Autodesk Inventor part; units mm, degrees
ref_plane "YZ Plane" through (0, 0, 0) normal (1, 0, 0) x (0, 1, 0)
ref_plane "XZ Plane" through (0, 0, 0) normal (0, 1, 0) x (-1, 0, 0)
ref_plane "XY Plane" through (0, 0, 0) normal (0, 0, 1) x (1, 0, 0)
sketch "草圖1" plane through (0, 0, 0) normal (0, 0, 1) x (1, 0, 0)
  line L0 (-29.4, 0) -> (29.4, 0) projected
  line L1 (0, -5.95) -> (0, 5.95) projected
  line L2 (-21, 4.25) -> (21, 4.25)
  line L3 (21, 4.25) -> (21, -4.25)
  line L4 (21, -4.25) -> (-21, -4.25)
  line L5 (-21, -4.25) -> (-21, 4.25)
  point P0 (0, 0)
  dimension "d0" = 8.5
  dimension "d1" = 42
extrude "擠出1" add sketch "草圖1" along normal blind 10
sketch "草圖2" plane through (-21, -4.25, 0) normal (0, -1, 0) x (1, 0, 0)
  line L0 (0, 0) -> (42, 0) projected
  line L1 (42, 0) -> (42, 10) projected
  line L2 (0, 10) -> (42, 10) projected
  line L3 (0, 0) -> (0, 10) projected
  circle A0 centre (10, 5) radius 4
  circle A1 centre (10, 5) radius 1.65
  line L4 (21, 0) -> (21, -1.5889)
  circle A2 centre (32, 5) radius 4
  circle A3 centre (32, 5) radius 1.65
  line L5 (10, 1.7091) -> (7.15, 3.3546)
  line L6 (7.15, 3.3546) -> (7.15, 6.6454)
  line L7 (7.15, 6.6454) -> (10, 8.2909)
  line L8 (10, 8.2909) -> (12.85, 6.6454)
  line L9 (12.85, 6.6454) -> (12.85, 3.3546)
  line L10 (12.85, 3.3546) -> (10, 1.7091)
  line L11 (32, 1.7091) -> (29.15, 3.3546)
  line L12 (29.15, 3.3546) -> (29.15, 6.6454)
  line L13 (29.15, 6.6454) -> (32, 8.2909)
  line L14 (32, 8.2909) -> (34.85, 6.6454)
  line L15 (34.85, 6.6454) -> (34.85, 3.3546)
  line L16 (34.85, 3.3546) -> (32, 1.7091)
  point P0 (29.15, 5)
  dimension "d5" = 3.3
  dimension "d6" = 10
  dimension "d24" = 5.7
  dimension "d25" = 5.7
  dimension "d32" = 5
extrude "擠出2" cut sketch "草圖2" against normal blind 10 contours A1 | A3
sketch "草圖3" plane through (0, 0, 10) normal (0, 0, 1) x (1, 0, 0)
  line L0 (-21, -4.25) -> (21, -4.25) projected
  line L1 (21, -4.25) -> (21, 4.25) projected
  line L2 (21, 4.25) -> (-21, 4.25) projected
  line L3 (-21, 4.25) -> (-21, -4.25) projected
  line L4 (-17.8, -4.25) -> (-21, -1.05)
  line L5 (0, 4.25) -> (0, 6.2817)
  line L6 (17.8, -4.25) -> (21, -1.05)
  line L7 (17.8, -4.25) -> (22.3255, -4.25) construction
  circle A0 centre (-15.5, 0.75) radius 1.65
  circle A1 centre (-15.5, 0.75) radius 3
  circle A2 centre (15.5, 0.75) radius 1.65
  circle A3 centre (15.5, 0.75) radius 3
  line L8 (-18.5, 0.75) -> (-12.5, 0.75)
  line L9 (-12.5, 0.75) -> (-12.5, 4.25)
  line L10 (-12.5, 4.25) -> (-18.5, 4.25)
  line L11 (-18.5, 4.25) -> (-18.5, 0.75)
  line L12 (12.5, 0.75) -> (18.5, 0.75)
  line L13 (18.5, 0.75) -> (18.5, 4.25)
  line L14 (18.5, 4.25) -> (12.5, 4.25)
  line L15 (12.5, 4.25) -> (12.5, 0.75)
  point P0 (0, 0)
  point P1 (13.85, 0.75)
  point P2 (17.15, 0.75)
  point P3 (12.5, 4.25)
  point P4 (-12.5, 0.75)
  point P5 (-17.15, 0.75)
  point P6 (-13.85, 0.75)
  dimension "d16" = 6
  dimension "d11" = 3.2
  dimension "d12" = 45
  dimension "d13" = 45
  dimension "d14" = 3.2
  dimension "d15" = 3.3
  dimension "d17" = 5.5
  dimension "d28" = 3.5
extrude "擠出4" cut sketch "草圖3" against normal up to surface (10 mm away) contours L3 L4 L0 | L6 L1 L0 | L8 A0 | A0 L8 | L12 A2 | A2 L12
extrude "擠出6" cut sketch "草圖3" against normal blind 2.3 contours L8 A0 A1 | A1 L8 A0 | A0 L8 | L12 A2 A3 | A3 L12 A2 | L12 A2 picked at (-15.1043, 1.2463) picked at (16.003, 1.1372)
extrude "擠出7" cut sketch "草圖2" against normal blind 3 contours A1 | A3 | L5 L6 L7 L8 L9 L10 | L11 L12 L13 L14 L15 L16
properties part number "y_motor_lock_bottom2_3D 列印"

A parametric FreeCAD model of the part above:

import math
import FreeCAD as App
import Part
import Sketcher
Q = App.Units.Quantity


def add_polygon(sketch, points):
    """Adds a closed chain of lines whose ends are joined by coincident constraints."""
    first, n = sketch.GeometryCount, len(points)
    for a, b in zip(points, points[1:] + points[:1]):
        sketch.addGeometry(Part.LineSegment(App.Vector(*a, 0), App.Vector(*b, 0)), False)
    for i in range(n):
        sketch.addConstraint(Sketcher.Constraint("Coincident", first + i, 2, first + (i + 1) % n, 1))

doc = App.newDocument("Part")
params = doc.addObject("Spreadsheet::Sheet", "Params")
for row, (alias, value) in enumerate([
    ("sketch1_width", "42 mm"),
    ("sketch1_height", "8.5 mm"),
    ("pad1_length", "10 mm"),
    ("sketch2_diameter", "3.3 mm"),
    ("pocket1_length", "10 mm"),
    ("sketch3_diameter", "3.3 mm"),
    ("sketch3_width", "3.2 mm"),
    ("pocket2_length", "10 mm"),
    ("sketch4_diameter", "6 mm"),
    ("sketch4_radius", "1.65 mm"),
    ("pocket3_length", "2.3 mm"),
    ("pocket4_length", "3 mm"),
], start=1):
    params.set(f"A{row}", alias)
    params.set(f"B{row}", "=" + value)
    params.setAlias(f"B{row}", alias)

body = doc.addObject("PartDesign::Body", "Body")

# Sketch on XY plane
sketch1 = body.newObject("Sketcher::SketchObject", "Sketch")
sketch1.AttachmentSupport = (doc.getObject("XY_Plane"), [""])
sketch1.MapMode = "FlatFace"
add_polygon(sketch1, [(-21, 4.25), (-21, -4.25), (21, -4.25), (21, 4.25)])  # lines 0-3
sketch1.addConstraint(Sketcher.Constraint("Vertical", 0))
sketch1.addConstraint(Sketcher.Constraint("Horizontal", 1))
sketch1.addConstraint(Sketcher.Constraint("Vertical", 2))
sketch1.addConstraint(Sketcher.Constraint("Horizontal", 3))
sketch1.addConstraint(Sketcher.Constraint("Symmetric", 0, 2, 2, 2, -1, 1))
sketch1.addConstraint(Sketcher.Constraint("DistanceX", 1, 1, 1, 2, 42.0))
sketch1.addConstraint(Sketcher.Constraint("DistanceY", 0, 2, 0, 1, 8.5))
sketch1.setExpression("Constraints[9]", "Params.sketch1_width")
sketch1.setExpression("Constraints[10]", "Params.sketch1_height")
pad1 = body.newObject("PartDesign::Pad", "Pad")
pad1.Profile = sketch1
pad1.setExpression("Length", "Params.pad1_length")

# Sketch on XZ plane
sketch2 = body.newObject("Sketcher::SketchObject", "Sketch001")
sketch2.AttachmentSupport = (doc.getObject("XZ_Plane"), [""])
sketch2.MapMode = "FlatFace"
sketch2.AttachmentOffset = App.Placement(App.Vector(0, 0, 4.25), App.Rotation())
sketch2.addGeometry(Part.Circle(App.Vector(-11, 5, 0), App.Vector(0, 0, 1), 1.65), False)
sketch2.addGeometry(Part.Circle(App.Vector(11, 5, 0), App.Vector(0, 0, 1), 1.65), False)
sketch2.addConstraint(Sketcher.Constraint("Equal", 0, 1))
sketch2.addConstraint(Sketcher.Constraint("Symmetric", 0, 3, 1, 3, -2))
sketch2.addConstraint(Sketcher.Constraint("Diameter", 0, 3.3))
sketch2.addConstraint(Sketcher.Constraint("DistanceY", -1, 1, 0, 3, 5.0))
sketch2.addConstraint(Sketcher.Constraint("DistanceX", 0, 3, -1, 1, 11.0))
sketch2.setExpression("Constraints[2]", "Params.sketch2_diameter")
pocket1 = body.newObject("PartDesign::Pocket", "Pocket")
pocket1.Profile = sketch2
pocket1.setExpression("Length", "Params.pocket1_length")

# Sketch on XY plane
sketch3 = body.newObject("Sketcher::SketchObject", "Sketch002")
sketch3.AttachmentSupport = (doc.getObject("XY_Plane"), [""])
sketch3.MapMode = "FlatFace"
sketch3.AttachmentOffset = App.Placement(App.Vector(0, 0, 10), App.Rotation())
add_polygon(sketch3, [(-21, -1.05), (-21, -4.25), (-17.8, -4.25)])  # lines 0-2
add_polygon(sketch3, [(21, -1.05), (17.8, -4.25), (21, -4.25)])  # lines 3-5
sketch3.addGeometry(Part.Circle(App.Vector(-15.5, 0.75, 0), App.Vector(0, 0, 1), 1.65), False)  # 6
sketch3.addGeometry(Part.Circle(App.Vector(15.5, 0.75, 0), App.Vector(0, 0, 1), 1.65), False)  # 7
sketch3.addConstraint(Sketcher.Constraint("Vertical", 0))
sketch3.addConstraint(Sketcher.Constraint("Horizontal", 1))
sketch3.addConstraint(Sketcher.Constraint("Horizontal", 4))
sketch3.addConstraint(Sketcher.Constraint("Vertical", 5))
sketch3.addConstraint(Sketcher.Constraint("Equal", 6, 7))
sketch3.addConstraint(Sketcher.Constraint("Symmetric", 6, 3, 7, 3, -2))
sketch3.addConstraint(Sketcher.Constraint("Symmetric", 1, 2, 3, 2, -2))
sketch3.addConstraint(Sketcher.Constraint("Symmetric", 2, 2, 5, 2, -2))
sketch3.addConstraint(Sketcher.Constraint("Perpendicular", 2, 3))
sketch3.addConstraint(Sketcher.Constraint("Diameter", 6, 3.3))
sketch3.addConstraint(Sketcher.Constraint("DistanceX", 1, 1, 1, 2, 3.2))
sketch3.addConstraint(Sketcher.Constraint("DistanceX", 0, 2, 6, 3, 5.5))
sketch3.addConstraint(Sketcher.Constraint("DistanceX", 0, 2, -1, 1, 21.0))
sketch3.addConstraint(Sketcher.Constraint("DistanceY", 0, 2, 6, 3, 5.0))
sketch3.addConstraint(Sketcher.Constraint("DistanceY", -1, 1, 6, 3, 0.75))
sketch3.setExpression("Constraints[15]", "Params.sketch3_diameter")
sketch3.setExpression("Constraints[16]", "Params.sketch3_width")
pocket2 = body.newObject("PartDesign::Pocket", "Pocket001")
pocket2.Profile = sketch3
pocket2.setExpression("Length", "Params.pocket2_length")

# Sketch on XY plane
sketch4 = body.newObject("Sketcher::SketchObject", "Sketch003")
sketch4.AttachmentSupport = (doc.getObject("XY_Plane"), [""])
sketch4.MapMode = "FlatFace"
sketch4.AttachmentOffset = App.Placement(App.Vector(0, 0, 10), App.Rotation())
sketch4.addGeometry(Part.Circle(App.Vector(-15.5, 0.75, 0), App.Vector(0, 0, 1), 3), False)
sketch4.addGeometry(Part.ArcOfCircle(Part.Circle(App.Vector(-15.5, 0.75, 0), App.Vector(0, 0, 1), 1.65), math.radians(180), math.radians(360)), False)
sketch4.addGeometry(Part.LineSegment(App.Vector(-17.15, 0.75, 0), App.Vector(-13.85, 0.75, 0)), False)
sketch4.addGeometry(Part.Circle(App.Vector(15.5, 0.75, 0), App.Vector(0, 0, 1), 3), False)
sketch4.addGeometry(Part.ArcOfCircle(Part.Circle(App.Vector(15.5, 0.75, 0), App.Vector(0, 0, 1), 1.65), math.radians(180), math.radians(360)), False)
sketch4.addGeometry(Part.LineSegment(App.Vector(13.85, 0.75, 0), App.Vector(17.15, 0.75, 0)), False)
sketch4.addConstraint(Sketcher.Constraint("Coincident", 1, 1, 2, 1))
sketch4.addConstraint(Sketcher.Constraint("Coincident", 2, 2, 1, 2))
sketch4.addConstraint(Sketcher.Constraint("Coincident", 4, 1, 5, 1))
sketch4.addConstraint(Sketcher.Constraint("Coincident", 5, 2, 4, 2))
sketch4.addConstraint(Sketcher.Constraint("Horizontal", 2))
sketch4.addConstraint(Sketcher.Constraint("Horizontal", 5))
sketch4.addConstraint(Sketcher.Constraint("Coincident", 1, 3, 0, 3))
sketch4.addConstraint(Sketcher.Constraint("Coincident", 4, 3, 3, 3))
sketch4.addConstraint(Sketcher.Constraint("Equal", 0, 3))
sketch4.addConstraint(Sketcher.Constraint("Equal", 1, 4))
sketch4.addConstraint(Sketcher.Constraint("Symmetric", 0, 3, 3, 3, -2))
sketch4.addConstraint(Sketcher.Constraint("Horizontal", 4, 3, 1, 1))
sketch4.addConstraint(Sketcher.Constraint("Horizontal", 2, 2, 4, 1))
sketch4.addConstraint(Sketcher.Constraint("Diameter", 0, 6.0))
sketch4.addConstraint(Sketcher.Constraint("Radius", 1, 1.65))
sketch4.addConstraint(Sketcher.Constraint("DistanceX", 0, 3, 3, 3, 31.0))
sketch4.addConstraint(Sketcher.Constraint("DistanceY", -1, 1, 0, 3, 0.75))
sketch4.setExpression("Constraints[13]", "Params.sketch4_diameter")
sketch4.setExpression("Constraints[14]", "Params.sketch4_radius")
pocket3 = body.newObject("PartDesign::Pocket", "Pocket002")
pocket3.Profile = sketch4
pocket3.setExpression("Length", "Params.pocket3_length")

# Sketch on XZ plane
sketch5 = body.newObject("Sketcher::SketchObject", "Sketch004")
sketch5.AttachmentSupport = (doc.getObject("XZ_Plane"), [""])
sketch5.MapMode = "FlatFace"
sketch5.AttachmentOffset = App.Placement(App.Vector(0, 0, 4.25), App.Rotation())
add_polygon(sketch5, [(-13.85, 3.3546), (-11, 1.7091), (-8.15, 3.3546), (-8.15, 6.6454), (-11, 8.2909), (-13.85, 6.6454)])  # lines 0-5
add_polygon(sketch5, [(8.15, 3.3546), (11, 1.7091), (13.85, 3.3546), (13.85, 6.6454), (11, 8.2909), (8.15, 6.6454)])  # lines 6-11
sketch5.addConstraint(Sketcher.Constraint("Vertical", 2))
sketch5.addConstraint(Sketcher.Constraint("Vertical", 5))
sketch5.addConstraint(Sketcher.Constraint("Vertical", 8))
sketch5.addConstraint(Sketcher.Constraint("Vertical", 11))
sketch5.addConstraint(Sketcher.Constraint("Symmetric", 0, 2, 6, 2, -2))
sketch5.addConstraint(Sketcher.Constraint("Symmetric", 5, 2, 7, 2, -2))
sketch5.addConstraint(Sketcher.Constraint("Symmetric", 3, 2, 9, 2, -2))
sketch5.addConstraint(Sketcher.Constraint("Symmetric", 2, 2, 10, 2, -2))
sketch5.addConstraint(Sketcher.Constraint("Parallel", 0, 3))
sketch5.addConstraint(Sketcher.Constraint("Parallel", 1, 4))
sketch5.addConstraint(Sketcher.Constraint("Parallel", 3, 6))
sketch5.addConstraint(Sketcher.Constraint("Parallel", 4, 7))
sketch5.addConstraint(Sketcher.Constraint("Parallel", 6, 9))
sketch5.addConstraint(Sketcher.Constraint("Horizontal", 2, 2, 4, 2))
sketch5.addConstraint(Sketcher.Constraint("Horizontal", 1, 2, 5, 2))
sketch5.addConstraint(Sketcher.Constraint("DistanceX", 4, 2, 2, 2, 5.7))
sketch5.addConstraint(Sketcher.Constraint("Angle", 0, Q("-30.0008 deg")))
sketch5.addConstraint(Sketcher.Constraint("DistanceX", 0, 2, -1, 1, 11.0))
sketch5.addConstraint(Sketcher.Constraint("DistanceY", 2, 1, 2, 2, 3.2908))
sketch5.addConstraint(Sketcher.Constraint("DistanceY", -1, 1, 0, 2, 1.709))
pocket4 = body.newObject("PartDesign::Pocket", "Pocket003")
pocket4.Profile = sketch5
pocket4.setExpression("Length", "Params.pocket4_length")

doc.recompute()
